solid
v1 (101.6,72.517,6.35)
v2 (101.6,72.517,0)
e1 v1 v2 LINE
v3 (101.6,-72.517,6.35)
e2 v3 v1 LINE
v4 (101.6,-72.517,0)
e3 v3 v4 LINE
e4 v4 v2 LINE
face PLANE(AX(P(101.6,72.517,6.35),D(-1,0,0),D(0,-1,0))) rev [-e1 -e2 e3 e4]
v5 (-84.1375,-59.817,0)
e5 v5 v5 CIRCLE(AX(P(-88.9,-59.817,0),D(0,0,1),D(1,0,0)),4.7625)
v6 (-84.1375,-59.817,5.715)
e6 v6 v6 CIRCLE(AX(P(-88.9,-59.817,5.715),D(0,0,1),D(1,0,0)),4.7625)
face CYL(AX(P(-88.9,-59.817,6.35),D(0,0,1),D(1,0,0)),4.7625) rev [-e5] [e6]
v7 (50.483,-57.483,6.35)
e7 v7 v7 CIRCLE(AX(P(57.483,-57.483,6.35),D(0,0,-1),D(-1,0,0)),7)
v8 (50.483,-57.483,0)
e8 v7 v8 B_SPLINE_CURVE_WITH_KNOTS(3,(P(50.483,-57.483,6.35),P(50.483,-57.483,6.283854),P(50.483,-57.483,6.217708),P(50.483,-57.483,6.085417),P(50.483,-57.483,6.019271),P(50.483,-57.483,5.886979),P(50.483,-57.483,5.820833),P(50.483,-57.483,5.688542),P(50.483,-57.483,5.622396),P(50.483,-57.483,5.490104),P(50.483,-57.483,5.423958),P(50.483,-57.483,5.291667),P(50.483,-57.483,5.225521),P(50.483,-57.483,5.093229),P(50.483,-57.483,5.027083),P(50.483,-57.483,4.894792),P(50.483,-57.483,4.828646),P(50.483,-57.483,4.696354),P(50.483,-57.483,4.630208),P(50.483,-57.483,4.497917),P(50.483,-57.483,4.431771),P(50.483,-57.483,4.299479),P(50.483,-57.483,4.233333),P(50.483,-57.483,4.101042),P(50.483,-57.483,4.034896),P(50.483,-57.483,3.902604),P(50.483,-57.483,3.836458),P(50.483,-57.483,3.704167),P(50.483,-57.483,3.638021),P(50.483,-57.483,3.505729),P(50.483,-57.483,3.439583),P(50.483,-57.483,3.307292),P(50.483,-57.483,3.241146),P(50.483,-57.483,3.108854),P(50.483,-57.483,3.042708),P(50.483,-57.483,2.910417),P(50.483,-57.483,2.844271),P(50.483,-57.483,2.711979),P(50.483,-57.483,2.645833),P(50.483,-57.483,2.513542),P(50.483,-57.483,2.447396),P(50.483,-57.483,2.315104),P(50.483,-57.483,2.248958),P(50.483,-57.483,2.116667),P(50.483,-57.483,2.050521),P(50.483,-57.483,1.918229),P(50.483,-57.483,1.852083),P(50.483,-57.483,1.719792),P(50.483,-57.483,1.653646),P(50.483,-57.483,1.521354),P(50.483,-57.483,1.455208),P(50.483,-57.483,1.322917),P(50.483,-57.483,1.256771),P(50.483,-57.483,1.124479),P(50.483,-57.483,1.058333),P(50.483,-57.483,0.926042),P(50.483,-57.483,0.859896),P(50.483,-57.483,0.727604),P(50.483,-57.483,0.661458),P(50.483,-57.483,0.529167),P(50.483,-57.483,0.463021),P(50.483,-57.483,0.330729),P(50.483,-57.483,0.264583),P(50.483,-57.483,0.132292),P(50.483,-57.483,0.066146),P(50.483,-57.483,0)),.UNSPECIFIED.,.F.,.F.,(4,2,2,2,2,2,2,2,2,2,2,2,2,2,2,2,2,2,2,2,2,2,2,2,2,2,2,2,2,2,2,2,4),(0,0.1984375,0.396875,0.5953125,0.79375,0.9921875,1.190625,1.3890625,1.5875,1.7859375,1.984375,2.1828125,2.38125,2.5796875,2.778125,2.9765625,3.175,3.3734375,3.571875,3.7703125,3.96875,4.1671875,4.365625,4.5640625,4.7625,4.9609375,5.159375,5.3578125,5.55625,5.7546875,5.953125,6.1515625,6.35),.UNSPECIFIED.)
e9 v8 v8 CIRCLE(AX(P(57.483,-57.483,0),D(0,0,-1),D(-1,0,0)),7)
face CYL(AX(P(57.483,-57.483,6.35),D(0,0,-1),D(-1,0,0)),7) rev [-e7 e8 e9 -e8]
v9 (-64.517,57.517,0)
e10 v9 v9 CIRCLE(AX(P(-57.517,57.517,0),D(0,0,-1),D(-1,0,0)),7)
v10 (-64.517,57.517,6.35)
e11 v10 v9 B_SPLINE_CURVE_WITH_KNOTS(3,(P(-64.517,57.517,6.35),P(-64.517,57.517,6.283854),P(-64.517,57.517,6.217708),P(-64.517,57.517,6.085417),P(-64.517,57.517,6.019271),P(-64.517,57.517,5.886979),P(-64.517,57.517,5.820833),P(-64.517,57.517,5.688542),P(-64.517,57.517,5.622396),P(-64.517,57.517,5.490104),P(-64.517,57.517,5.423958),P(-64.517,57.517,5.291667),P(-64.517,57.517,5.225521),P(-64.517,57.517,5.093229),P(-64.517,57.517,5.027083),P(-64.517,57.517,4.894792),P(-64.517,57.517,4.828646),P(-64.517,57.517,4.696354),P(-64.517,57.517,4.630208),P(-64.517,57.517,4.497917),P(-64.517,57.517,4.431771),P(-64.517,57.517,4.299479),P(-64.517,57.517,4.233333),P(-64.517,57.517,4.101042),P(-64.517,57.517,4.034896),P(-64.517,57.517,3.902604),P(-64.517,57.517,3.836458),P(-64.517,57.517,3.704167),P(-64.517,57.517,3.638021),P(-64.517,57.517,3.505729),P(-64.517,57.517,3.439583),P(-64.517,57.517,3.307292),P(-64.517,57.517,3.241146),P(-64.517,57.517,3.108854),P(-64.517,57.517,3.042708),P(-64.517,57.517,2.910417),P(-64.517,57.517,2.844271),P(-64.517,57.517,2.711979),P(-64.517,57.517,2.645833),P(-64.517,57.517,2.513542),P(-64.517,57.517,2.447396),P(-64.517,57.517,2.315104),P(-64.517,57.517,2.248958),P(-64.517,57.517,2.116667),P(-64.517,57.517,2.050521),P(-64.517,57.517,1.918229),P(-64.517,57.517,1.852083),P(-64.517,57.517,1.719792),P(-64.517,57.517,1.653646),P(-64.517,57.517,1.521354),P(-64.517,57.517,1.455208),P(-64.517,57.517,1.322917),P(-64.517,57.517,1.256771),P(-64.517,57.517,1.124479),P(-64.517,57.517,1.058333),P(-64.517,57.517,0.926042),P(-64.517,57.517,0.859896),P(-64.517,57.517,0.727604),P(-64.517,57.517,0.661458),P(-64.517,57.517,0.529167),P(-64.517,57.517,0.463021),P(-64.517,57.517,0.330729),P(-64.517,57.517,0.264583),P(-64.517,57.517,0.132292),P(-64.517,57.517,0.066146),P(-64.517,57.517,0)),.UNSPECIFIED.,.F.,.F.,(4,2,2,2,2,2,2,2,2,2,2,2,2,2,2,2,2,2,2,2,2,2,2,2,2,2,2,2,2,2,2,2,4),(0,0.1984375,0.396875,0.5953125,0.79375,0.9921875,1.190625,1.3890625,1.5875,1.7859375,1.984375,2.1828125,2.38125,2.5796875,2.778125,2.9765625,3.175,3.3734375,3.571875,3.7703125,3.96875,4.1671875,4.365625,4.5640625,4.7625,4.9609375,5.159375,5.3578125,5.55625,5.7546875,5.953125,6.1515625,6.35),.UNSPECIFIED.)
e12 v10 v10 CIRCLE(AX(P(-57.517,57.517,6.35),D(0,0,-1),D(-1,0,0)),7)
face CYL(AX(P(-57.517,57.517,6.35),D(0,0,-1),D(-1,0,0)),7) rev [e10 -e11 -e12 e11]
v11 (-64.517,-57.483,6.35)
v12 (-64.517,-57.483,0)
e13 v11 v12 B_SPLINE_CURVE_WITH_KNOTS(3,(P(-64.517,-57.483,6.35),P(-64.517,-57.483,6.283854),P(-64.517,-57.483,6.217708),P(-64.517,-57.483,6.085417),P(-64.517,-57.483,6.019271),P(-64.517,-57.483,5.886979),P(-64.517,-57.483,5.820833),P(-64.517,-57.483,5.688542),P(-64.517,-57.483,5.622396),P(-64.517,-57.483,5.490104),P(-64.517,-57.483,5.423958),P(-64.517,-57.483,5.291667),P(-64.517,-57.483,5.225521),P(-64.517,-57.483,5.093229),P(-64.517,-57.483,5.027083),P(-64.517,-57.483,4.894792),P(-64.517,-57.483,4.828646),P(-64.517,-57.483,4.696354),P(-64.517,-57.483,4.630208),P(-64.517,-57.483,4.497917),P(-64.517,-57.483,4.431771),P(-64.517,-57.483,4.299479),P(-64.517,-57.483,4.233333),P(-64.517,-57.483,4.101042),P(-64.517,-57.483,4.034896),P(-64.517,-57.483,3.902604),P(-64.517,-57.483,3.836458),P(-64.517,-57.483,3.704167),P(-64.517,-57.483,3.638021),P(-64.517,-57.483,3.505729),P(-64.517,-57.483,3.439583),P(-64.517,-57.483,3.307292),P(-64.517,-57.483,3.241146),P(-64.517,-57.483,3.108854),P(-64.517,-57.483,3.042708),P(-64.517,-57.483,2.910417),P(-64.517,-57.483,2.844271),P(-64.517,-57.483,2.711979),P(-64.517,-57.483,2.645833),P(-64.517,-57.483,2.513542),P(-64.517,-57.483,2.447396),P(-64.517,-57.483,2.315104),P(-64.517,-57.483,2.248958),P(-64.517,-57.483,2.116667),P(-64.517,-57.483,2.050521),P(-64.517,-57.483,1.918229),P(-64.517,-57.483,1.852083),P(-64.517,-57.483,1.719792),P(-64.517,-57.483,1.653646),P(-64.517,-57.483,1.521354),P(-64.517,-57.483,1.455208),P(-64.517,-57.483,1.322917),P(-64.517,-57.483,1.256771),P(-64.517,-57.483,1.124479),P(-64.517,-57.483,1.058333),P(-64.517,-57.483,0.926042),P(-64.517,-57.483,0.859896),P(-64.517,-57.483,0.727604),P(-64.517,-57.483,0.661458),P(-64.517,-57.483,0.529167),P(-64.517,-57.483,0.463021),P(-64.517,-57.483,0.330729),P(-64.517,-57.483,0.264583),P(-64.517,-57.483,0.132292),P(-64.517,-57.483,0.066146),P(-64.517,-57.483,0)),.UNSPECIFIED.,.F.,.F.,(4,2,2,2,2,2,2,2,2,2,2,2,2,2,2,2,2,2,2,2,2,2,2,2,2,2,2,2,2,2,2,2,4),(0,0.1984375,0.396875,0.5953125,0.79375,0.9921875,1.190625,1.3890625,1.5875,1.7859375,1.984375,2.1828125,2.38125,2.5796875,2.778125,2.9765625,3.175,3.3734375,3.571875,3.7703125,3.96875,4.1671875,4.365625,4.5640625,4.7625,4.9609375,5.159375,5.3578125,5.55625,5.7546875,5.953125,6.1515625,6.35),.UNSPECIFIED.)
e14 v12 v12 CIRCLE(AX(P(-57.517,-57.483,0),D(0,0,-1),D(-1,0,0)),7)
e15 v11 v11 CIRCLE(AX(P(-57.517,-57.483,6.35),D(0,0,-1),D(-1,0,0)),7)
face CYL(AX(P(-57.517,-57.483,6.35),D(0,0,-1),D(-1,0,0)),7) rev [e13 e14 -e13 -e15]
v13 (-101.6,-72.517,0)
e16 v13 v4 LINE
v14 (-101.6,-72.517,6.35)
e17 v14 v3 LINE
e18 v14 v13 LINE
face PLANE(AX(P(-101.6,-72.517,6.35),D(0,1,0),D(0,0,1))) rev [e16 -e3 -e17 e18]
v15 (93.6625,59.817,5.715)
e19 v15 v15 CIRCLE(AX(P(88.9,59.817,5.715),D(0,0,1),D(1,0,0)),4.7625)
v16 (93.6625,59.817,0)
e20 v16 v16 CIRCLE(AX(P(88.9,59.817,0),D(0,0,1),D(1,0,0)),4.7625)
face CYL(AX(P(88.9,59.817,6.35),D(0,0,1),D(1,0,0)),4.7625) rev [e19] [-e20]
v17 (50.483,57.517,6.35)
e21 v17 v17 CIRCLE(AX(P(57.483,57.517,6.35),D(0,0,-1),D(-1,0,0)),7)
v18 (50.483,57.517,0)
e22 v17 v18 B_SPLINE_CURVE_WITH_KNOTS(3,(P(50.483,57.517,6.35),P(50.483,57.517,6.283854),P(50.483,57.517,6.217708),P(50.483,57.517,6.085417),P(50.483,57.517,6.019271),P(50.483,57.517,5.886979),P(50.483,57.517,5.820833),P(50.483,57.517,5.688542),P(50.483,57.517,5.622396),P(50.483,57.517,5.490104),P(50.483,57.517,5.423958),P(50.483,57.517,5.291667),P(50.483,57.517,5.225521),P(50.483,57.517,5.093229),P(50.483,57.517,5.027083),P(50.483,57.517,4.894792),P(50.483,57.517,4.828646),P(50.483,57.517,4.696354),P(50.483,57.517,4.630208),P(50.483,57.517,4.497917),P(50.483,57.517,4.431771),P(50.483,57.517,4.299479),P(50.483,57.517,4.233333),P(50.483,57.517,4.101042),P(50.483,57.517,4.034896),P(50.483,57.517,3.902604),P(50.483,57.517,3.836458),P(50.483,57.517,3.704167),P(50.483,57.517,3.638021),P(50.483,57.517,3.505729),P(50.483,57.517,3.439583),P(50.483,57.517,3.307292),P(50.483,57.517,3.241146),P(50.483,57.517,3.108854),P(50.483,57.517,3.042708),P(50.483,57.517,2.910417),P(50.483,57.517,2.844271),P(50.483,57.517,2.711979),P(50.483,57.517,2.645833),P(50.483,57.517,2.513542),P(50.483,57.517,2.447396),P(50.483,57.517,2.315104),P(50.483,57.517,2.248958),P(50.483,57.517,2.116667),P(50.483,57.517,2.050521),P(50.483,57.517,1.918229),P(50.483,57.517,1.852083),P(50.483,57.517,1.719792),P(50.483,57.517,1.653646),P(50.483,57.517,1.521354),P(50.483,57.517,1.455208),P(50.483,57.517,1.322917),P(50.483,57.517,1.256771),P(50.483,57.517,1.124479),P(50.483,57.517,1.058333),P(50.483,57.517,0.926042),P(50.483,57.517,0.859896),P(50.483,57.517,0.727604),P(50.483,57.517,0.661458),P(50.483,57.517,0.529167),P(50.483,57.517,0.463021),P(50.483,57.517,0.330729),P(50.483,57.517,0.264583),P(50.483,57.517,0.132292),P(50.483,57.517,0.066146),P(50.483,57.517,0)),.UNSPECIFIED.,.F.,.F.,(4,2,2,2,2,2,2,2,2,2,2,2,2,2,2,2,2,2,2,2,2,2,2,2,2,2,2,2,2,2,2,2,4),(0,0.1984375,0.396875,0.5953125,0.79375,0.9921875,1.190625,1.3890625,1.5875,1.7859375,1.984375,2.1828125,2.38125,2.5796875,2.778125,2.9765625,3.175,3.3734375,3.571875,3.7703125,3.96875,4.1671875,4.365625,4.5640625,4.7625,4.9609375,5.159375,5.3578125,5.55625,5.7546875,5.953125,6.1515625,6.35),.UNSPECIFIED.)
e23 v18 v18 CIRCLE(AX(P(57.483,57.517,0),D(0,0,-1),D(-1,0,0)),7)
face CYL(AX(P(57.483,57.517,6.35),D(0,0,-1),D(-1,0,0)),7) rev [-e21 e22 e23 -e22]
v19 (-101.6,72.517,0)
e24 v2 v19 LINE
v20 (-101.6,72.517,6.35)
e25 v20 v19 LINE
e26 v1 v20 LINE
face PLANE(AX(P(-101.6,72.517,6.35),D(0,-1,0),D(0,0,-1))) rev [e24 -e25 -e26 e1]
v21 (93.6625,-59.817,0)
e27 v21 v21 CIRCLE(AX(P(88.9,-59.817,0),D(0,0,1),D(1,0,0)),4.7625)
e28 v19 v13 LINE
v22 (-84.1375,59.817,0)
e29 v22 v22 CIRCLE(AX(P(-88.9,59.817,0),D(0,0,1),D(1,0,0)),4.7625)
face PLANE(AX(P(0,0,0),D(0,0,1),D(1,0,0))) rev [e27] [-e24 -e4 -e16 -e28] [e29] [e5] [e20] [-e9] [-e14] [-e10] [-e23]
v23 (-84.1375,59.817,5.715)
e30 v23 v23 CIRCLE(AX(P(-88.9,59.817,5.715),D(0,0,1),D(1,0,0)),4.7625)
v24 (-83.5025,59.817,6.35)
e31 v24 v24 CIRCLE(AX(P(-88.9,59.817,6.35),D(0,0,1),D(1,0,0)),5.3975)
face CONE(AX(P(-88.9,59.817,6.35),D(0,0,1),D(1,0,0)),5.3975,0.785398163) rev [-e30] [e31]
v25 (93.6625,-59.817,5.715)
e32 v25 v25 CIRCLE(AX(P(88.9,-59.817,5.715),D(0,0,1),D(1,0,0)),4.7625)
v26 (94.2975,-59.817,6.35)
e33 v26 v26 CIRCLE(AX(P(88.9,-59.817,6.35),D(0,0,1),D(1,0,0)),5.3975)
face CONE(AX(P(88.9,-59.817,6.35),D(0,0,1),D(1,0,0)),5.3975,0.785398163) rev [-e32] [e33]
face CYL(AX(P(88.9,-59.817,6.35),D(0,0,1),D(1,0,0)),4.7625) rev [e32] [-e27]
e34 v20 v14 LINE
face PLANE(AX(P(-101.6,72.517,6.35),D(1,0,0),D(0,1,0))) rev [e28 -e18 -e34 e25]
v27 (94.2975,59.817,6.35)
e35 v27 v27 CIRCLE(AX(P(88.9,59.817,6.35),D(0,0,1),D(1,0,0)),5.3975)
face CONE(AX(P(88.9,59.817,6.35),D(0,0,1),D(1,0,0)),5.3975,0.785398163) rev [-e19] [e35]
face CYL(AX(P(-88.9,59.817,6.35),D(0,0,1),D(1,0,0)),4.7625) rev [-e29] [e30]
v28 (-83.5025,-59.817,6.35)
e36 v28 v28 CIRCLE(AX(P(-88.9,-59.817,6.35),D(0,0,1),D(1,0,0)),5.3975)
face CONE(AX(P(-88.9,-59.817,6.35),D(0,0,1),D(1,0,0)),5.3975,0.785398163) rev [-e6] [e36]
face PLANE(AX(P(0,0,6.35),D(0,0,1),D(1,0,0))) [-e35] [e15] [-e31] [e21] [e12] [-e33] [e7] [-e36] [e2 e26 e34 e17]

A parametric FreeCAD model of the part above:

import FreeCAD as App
import Part
import Sketcher
from FreeCAD import Vector
Q = App.Units.Quantity

doc = App.newDocument("Part")
body = doc.addObject("PartDesign::Body", "Body")

# Sketch on XY plane
sketch1 = body.newObject("Sketcher::SketchObject", "Sketch")
sketch1.AttachmentSupport = (doc.getObject("XY_Plane"), [""])
sketch1.MapMode = "FlatFace"
sketch1.addGeometry([
    Part.LineSegment(Vector(-101.6, 72.517, 0), Vector(-101.6, -72.517, 0)),
    Part.LineSegment(Vector(-101.6, -72.517, 0), Vector(101.6, -72.517, 0)),
    Part.LineSegment(Vector(101.6, -72.517, 0), Vector(101.6, 72.517, 0)),
    Part.LineSegment(Vector(101.6, 72.517, 0), Vector(-101.6, 72.517, 0)),
], False)
sketch1.addConstraint([
    Sketcher.Constraint("Coincident", 0, 2, 1, 1),
    Sketcher.Constraint("Coincident", 1, 2, 2, 1),
    Sketcher.Constraint("Coincident", 2, 2, 3, 1),
    Sketcher.Constraint("Coincident", 3, 2, 0, 1),
    Sketcher.Constraint("Vertical", 0),
    Sketcher.Constraint("Horizontal", 1),
    Sketcher.Constraint("Vertical", 2),
    Sketcher.Constraint("Horizontal", 3),
    Sketcher.Constraint("Symmetric", 0, 2, 2, 2, -1, 1),
    Sketcher.Constraint("DistanceX", 1, 1, 1, 2, Q("8 in")),
    Sketcher.Constraint("DistanceY", 0, 2, 0, 1, Q("5.71 in")),
])
pad1 = body.newObject("PartDesign::Pad", "Pad")
pad1.Profile = sketch1
pad1.Length = Q("0.25 in")

# Sketch on XY plane
sketch2 = body.newObject("Sketcher::SketchObject", "Sketch001")
sketch2.AttachmentSupport = (doc.getObject("XY_Plane"), [""])
sketch2.MapMode = "FlatFace"
sketch2.AttachmentOffset = App.Placement(Vector(0, 0, 0.25 * 25.4), App.Rotation())
sketch2.addGeometry([
    Part.Circle(Vector(-88.9, 59.817, 0), Vector(0, 0, 1), 4.7625),
    Part.Circle(Vector(-88.9, -59.817, 0), Vector(0, 0, 1), 4.7625),
    Part.Circle(Vector(88.9, -59.817, 0), Vector(0, 0, 1), 4.7625),
    Part.Circle(Vector(88.9, 59.817, 0), Vector(0, 0, 1), 4.7625),
], False)
sketch2.addConstraint([
    Sketcher.Constraint("Equal", 0, 1),
    Sketcher.Constraint("Equal", 1, 2),
    Sketcher.Constraint("Equal", 2, 3),
    Sketcher.Constraint("Symmetric", 0, 3, 2, 3, -1, 1),
    Sketcher.Constraint("Symmetric", 1, 3, 3, 3, -1, 1),
    Sketcher.Constraint("Symmetric", 1, 3, 2, 3, -2),
    Sketcher.Constraint("Diameter", 0, Q("0.375 in")),
    Sketcher.Constraint("DistanceX", 1, 3, 2, 3, Q("7 in")),
    Sketcher.Constraint("DistanceY", 1, 3, 0, 3, Q("4.71 in")),
])
doc.recompute()
hole = body.newObject("PartDesign::Hole", "Hole")
hole.Profile = sketch2
hole.ThreadType = "None"
hole.Diameter = Q("0.375 in")
hole.DepthType = "ThroughAll"
hole.HoleCutType = "Countersink"
hole.HoleCutDiameter = Q("0.425 in")
hole.HoleCutCountersinkAngle = 90

# Sketch on XY plane
sketch3 = body.newObject("Sketcher::SketchObject", "Sketch002")
sketch3.AttachmentSupport = (doc.getObject("XY_Plane"), [""])
sketch3.MapMode = "FlatFace"
sketch3.addGeometry([
    Part.Circle(Vector(57.483, 57.517, 0), Vector(0, 0, 1), 7),
    Part.Circle(Vector(-57.517, 57.517, 0), Vector(0, 0, 1), 7),
    Part.Circle(Vector(-57.517, -57.483, 0), Vector(0, 0, 1), 7),
    Part.Circle(Vector(57.483, -57.483, 0), Vector(0, 0, 1), 7),
], False)
sketch3.addConstraint([
    Sketcher.Constraint("Equal", 0, 1),
    Sketcher.Constraint("Equal", 1, 2),
    Sketcher.Constraint("Equal", 2, 3),
    Sketcher.Constraint("Horizontal", 0, 3, 1, 3),
    Sketcher.Constraint("Horizontal", 2, 3, 3, 3),
    Sketcher.Constraint("Vertical", 1, 3, 2, 3),
    Sketcher.Constraint("Vertical", 0, 3, 3, 3),
    Sketcher.Constraint("Diameter", 0, 14.0),
    Sketcher.Constraint("DistanceX", -1, 1, 0, 3, 57.483),
    Sketcher.Constraint("DistanceY", -1, 1, 0, 3, 57.517),
    Sketcher.Constraint("DistanceX", 1, 3, -1, 1, 57.517),
    Sketcher.Constraint("DistanceY", 2, 3, -1, 1, 57.483),
])
pocket1 = body.newObject("PartDesign::Pocket", "Pocket")
pocket1.Profile = sketch3
pocket1.Type = "ThroughAll"
pocket1.Reversed = True

doc.recompute()
